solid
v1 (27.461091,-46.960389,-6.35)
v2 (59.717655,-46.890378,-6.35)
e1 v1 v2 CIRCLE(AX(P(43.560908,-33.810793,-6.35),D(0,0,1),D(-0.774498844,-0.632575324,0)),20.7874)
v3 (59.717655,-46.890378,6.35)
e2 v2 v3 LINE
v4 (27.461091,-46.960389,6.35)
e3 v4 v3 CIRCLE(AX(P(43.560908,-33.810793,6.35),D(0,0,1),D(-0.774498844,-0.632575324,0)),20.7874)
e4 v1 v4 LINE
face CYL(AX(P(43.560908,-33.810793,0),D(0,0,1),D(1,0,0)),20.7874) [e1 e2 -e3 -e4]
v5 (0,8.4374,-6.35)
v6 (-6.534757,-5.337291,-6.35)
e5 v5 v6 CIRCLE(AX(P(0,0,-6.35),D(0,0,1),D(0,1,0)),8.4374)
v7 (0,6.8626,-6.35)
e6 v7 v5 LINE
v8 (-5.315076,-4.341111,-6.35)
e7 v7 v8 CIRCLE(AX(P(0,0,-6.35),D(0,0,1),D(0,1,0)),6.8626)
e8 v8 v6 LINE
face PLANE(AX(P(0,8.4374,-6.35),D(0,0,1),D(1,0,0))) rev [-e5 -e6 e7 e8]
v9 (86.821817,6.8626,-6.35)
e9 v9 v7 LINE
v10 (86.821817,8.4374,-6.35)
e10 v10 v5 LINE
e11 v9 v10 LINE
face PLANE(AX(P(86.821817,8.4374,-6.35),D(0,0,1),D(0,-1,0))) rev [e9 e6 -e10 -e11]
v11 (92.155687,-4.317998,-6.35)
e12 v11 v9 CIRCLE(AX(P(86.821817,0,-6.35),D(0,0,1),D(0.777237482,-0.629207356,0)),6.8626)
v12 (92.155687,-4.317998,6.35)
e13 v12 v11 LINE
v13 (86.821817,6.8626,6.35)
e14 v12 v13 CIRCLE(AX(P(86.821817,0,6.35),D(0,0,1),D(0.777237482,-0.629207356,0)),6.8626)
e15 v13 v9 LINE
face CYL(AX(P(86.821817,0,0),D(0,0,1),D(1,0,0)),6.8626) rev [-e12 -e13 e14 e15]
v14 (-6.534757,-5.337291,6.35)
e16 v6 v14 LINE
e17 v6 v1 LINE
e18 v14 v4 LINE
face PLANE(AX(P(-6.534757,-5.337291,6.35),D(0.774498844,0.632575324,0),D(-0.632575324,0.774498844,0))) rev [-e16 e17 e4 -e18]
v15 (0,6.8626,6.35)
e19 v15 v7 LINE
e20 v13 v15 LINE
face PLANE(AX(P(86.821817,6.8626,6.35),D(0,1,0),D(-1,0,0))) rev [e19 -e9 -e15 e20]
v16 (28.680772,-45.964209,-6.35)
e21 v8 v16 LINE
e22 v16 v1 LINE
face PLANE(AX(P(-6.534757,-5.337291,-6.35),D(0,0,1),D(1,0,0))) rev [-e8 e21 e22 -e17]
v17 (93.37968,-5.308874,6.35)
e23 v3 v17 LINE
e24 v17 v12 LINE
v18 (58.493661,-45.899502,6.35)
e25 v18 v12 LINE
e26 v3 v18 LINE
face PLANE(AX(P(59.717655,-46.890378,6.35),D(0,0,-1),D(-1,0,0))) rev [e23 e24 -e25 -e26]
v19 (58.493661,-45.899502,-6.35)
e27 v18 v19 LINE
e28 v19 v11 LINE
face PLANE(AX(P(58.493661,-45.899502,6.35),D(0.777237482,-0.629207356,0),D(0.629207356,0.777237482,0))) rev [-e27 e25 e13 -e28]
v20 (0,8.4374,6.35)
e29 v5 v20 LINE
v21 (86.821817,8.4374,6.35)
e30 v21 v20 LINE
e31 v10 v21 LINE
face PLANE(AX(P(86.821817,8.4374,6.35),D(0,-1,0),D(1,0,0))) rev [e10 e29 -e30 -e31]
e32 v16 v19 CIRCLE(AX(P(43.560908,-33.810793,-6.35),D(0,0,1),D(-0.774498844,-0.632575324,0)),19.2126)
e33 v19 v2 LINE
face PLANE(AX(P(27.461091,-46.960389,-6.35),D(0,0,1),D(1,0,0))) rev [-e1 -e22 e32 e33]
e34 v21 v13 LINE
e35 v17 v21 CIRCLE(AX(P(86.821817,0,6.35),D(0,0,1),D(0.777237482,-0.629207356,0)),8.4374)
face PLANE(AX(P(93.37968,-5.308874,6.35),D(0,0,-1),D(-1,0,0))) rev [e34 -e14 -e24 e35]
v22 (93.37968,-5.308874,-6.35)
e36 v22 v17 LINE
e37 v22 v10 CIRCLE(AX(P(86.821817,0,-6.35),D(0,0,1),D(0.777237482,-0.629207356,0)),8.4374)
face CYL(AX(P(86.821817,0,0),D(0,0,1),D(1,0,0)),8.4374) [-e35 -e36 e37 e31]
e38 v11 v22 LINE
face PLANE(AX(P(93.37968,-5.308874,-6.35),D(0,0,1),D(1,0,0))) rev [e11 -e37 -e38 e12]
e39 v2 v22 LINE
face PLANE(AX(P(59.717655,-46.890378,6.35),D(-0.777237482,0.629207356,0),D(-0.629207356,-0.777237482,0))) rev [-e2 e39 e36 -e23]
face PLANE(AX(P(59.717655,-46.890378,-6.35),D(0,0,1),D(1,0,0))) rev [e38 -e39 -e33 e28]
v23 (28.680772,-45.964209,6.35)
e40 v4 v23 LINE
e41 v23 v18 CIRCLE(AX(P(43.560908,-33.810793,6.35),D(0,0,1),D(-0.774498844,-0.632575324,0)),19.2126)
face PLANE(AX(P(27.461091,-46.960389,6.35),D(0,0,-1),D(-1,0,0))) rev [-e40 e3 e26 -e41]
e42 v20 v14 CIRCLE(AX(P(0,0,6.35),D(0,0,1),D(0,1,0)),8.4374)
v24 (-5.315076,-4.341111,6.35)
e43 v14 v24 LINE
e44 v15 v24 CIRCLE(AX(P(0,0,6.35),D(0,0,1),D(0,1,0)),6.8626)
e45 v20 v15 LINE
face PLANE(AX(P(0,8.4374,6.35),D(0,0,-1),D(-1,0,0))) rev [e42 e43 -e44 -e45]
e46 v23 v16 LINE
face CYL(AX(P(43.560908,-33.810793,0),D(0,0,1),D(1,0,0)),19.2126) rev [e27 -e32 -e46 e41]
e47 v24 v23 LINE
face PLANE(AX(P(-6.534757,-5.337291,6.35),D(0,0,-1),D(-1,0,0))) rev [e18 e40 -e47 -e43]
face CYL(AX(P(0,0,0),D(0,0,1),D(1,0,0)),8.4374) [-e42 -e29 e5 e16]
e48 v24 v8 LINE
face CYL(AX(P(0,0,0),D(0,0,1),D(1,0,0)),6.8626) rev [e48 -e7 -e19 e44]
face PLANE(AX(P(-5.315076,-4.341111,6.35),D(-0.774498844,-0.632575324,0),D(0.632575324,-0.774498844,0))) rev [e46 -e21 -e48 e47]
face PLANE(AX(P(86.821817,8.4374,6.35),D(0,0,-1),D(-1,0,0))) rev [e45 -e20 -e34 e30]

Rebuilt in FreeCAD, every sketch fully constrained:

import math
import FreeCAD as App
import Part
import Sketcher
from FreeCAD import Vector


def add_polygon(sketch, points):
    """Adds a closed chain of lines whose ends are joined by coincident constraints."""
    first, n = sketch.GeometryCount, len(points)
    for a, b in zip(points, points[1:] + points[:1]):
        sketch.addGeometry(Part.LineSegment(App.Vector(*a, 0), App.Vector(*b, 0)), False)
    for i in range(n):
        sketch.addConstraint(Sketcher.Constraint("Coincident", first + i, 2, first + (i + 1) % n, 1))

doc = App.newDocument("Part")
body = doc.addObject("PartDesign::Body", "Body")

# Sketch on YZ plane
sketch1 = doc.addObject("Sketcher::SketchObject", "Sketch")
body.addObject(sketch1)
sketch1.AttachmentSupport = (doc.YZ_Plane, [""])
sketch1.MapMode = "FlatFace"
add_polygon(sketch1, [(8.4, 6.3), (6.9, 6.3), (6.9, -6.3), (8.4, -6.3)])  # lines 0-3
sketch1.addConstraint(Sketcher.Constraint("Horizontal", 0))
sketch1.addConstraint(Sketcher.Constraint("Vertical", 1))
sketch1.addConstraint(Sketcher.Constraint("Horizontal", 2))
sketch1.addConstraint(Sketcher.Constraint("Vertical", 3))
sketch1.addConstraint(Sketcher.Constraint("DistanceY", 1, 2, 1, 1, 12.7))
sketch1.addConstraint(Sketcher.Constraint("DistanceY", -1, 1, 0, 2, 6.35))
sketch1.addConstraint(Sketcher.Constraint("DistanceX", 0, 2, 0, 1, 1.5748))
sketch1.addConstraint(Sketcher.Constraint("DistanceX", -1, 1, 0, 2, 6.8626))

# Sketch on XY plane
sketch2 = doc.addObject("Sketcher::SketchObject", "Sketch001")
body.addObject(sketch2)
sketch2.AttachmentSupport = (doc.XY_Plane, [""])
sketch2.MapMode = "FlatFace"
sketch2.addGeometry(Part.LineSegment(Vector(0, 8, 0), Vector(87, 8, 0)), False)
sketch2.addGeometry(Part.ArcOfCircle(Part.Circle(Vector(87, 0, 0), Vector(0, 0, 1), 8), math.radians(-39), math.radians(90)), False)
sketch2.addGeometry(Part.LineSegment(Vector(93, -5, 0), Vector(59, -46, 0)), False)
sketch2.addGeometry(Part.ArcOfCircle(Part.Circle(Vector(44, -34, 0), Vector(0, 0, 1), 20), math.radians(-141), math.radians(-39)), False)
sketch2.addGeometry(Part.LineSegment(Vector(28, -46, 0), Vector(-6, -5, 0)), False)
sketch2.addGeometry(Part.ArcOfCircle(Part.Circle(Vector(0, 0, 0), Vector(0, 0, 1), 8), math.radians(90), math.radians(219)), False)
sketch2.addConstraint(Sketcher.Constraint("Tangent", 0, 2, 1, 2))
sketch2.addConstraint(Sketcher.Constraint("Tangent", 1, 1, 2, 1))
sketch2.addConstraint(Sketcher.Constraint("Tangent", 2, 2, 3, 2))
sketch2.addConstraint(Sketcher.Constraint("Tangent", 3, 1, 4, 1))
sketch2.addConstraint(Sketcher.Constraint("Tangent", 4, 2, 5, 2))
sketch2.addConstraint(Sketcher.Constraint("Tangent", 5, 1, 0, 1))
sketch2.addConstraint(Sketcher.Constraint("Horizontal", 0))
sketch2.addConstraint(Sketcher.Constraint("Coincident", 5, 3, -1, 1))
sketch2.addConstraint(Sketcher.Constraint("Equal", 1, 5))
sketch2.addConstraint(Sketcher.Constraint("Radius", 3, 20.0))
sketch2.addConstraint(Sketcher.Constraint("Radius", 1, 7.65))
sketch2.addConstraint(Sketcher.Constraint("DistanceY", 3, 1, -1, 1, 46.462299))
sketch2.addConstraint(Sketcher.Constraint("DistanceY", 4, 2, -1, 1, 4.839201))
sketch2.addConstraint(Sketcher.Constraint("DistanceX", 0, 1, 0, 2, 86.821817))
doc.recompute()

additivepipe = doc.addObject("PartDesign::AdditivePipe", "AdditivePipe")
body.addObject(additivepipe)
additivepipe.Profile = sketch1
additivepipe.Spine = (sketch2, ["Edge1", "Edge2", "Edge3", "Edge4", "Edge5", "Edge6"])

doc.recompute()
